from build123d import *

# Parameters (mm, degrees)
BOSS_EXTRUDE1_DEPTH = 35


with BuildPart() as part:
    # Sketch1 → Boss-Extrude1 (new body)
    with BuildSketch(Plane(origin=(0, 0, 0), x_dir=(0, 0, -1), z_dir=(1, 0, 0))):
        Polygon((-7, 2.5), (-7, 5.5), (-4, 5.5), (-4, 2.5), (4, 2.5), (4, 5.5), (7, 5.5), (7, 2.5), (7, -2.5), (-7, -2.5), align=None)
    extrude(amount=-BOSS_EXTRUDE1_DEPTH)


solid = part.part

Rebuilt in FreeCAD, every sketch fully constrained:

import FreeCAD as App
import Part
import Sketcher

V = App.Vector

doc = App.newDocument("Part")
body = doc.addObject("PartDesign::Body", "Body")

# Sketch on YZ plane
sketch1 = body.newObject("Sketcher::SketchObject", "Sketch")
sketch1.AttachmentSupport = (doc.getObject("YZ_Plane"), [""])
sketch1.MapMode = "FlatFace"
sketch1.addGeometry(Part.LineSegment(V(5.5, 7, 0), V(-2.5, 7, 0)), False)
sketch1.addGeometry(Part.LineSegment(V(-2.5, 7, 0), V(-2.5, -7, 0)), False)
sketch1.addGeometry(Part.LineSegment(V(-2.5, -7, 0), V(5.5, -7, 0)), False)
sketch1.addGeometry(Part.LineSegment(V(5.5, -7, 0), V(5.5, -4, 0)), False)
sketch1.addGeometry(Part.LineSegment(V(5.5, -4, 0), V(2.5, -4, 0)), False)
sketch1.addGeometry(Part.LineSegment(V(2.5, -4, 0), V(2.5, 4, 0)), False)
sketch1.addGeometry(Part.LineSegment(V(2.5, 4, 0), V(5.5, 4, 0)), False)
sketch1.addGeometry(Part.LineSegment(V(5.5, 4, 0), V(5.5, 7, 0)), False)
sketch1.addConstraint(Sketcher.Constraint("Coincident", 0, 2, 1, 1))
sketch1.addConstraint(Sketcher.Constraint("Coincident", 1, 2, 2, 1))
sketch1.addConstraint(Sketcher.Constraint("Coincident", 2, 2, 3, 1))
sketch1.addConstraint(Sketcher.Constraint("Coincident", 3, 2, 4, 1))
sketch1.addConstraint(Sketcher.Constraint("Coincident", 4, 2, 5, 1))
sketch1.addConstraint(Sketcher.Constraint("Coincident", 5, 2, 6, 1))
sketch1.addConstraint(Sketcher.Constraint("Coincident", 6, 2, 7, 1))
sketch1.addConstraint(Sketcher.Constraint("Coincident", 7, 2, 0, 1))
sketch1.addConstraint(Sketcher.Constraint("Horizontal", 0))
sketch1.addConstraint(Sketcher.Constraint("Vertical", 1))
sketch1.addConstraint(Sketcher.Constraint("Horizontal", 2))
sketch1.addConstraint(Sketcher.Constraint("Vertical", 3))
sketch1.addConstraint(Sketcher.Constraint("Horizontal", 4))
sketch1.addConstraint(Sketcher.Constraint("Vertical", 5))
sketch1.addConstraint(Sketcher.Constraint("Horizontal", 6))
sketch1.addConstraint(Sketcher.Constraint("Vertical", 7))
sketch1.addConstraint(Sketcher.Constraint("Symmetric", 3, 2, 6, 2, -1))
sketch1.addConstraint(Sketcher.Constraint("Equal", 6, 3))
sketch1.addConstraint(Sketcher.Constraint("Equal", 2, 5))
sketch1.addConstraint(Sketcher.Constraint("Equal", 3, 7))
sketch1.addConstraint(Sketcher.Constraint("DistanceX", 0, 2, 0, 1, 8.0))
sketch1.addConstraint(Sketcher.Constraint("DistanceX", 4, 2, 4, 1, 3.0))
sketch1.addConstraint(Sketcher.Constraint("DistanceX", 0, 2, -1, 1, 2.5))
pad1 = body.newObject("PartDesign::Pad", "Pad")
pad1.Profile = sketch1
pad1.Length = 35
pad1.Reversed = True

doc.recompute()
